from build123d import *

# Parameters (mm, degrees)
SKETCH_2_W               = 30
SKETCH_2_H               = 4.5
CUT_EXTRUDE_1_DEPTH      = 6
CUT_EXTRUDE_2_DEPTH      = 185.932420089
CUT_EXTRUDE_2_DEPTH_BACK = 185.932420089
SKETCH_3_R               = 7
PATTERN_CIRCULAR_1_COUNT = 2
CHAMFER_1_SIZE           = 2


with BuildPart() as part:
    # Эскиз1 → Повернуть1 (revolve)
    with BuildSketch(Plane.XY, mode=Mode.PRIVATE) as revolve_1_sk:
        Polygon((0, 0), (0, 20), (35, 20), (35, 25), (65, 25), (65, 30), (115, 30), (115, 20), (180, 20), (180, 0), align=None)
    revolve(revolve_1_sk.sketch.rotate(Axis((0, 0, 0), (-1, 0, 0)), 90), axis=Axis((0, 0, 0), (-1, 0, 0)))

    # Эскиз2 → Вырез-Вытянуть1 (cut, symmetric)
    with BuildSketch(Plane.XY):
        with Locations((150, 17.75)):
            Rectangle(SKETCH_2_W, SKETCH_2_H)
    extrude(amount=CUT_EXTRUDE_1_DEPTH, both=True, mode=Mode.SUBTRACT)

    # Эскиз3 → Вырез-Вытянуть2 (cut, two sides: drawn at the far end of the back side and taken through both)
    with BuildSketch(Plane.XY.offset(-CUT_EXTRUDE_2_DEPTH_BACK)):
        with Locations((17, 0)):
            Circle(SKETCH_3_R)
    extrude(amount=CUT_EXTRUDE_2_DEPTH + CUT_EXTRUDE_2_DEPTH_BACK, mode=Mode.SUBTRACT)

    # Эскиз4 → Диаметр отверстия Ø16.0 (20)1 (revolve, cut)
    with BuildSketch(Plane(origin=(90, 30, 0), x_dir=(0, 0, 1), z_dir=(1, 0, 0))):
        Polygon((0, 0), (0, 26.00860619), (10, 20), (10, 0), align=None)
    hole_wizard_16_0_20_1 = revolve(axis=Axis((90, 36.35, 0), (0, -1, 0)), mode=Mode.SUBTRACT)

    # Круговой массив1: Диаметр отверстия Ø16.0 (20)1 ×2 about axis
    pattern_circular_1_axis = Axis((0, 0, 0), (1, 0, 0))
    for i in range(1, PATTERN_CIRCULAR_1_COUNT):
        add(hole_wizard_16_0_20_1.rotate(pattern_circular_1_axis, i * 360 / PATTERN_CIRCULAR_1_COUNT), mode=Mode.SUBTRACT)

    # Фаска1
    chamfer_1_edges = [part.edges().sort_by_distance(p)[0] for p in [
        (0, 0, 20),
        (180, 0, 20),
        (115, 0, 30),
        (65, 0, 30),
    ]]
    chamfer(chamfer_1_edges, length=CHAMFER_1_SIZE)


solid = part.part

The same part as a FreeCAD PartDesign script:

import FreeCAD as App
import Part
import Sketcher
Q = App.Units.Quantity


def edges_at(feature, points):
    """Names of the edges that pass closest to the given points."""
    edges = feature.Shape.Edges
    near = lambda p: min(range(len(edges)), key=lambda i: edges[i].distToShape(Part.Vertex(*p))[0])
    return sorted({f"Edge{near(p) + 1}" for p in points})


def add_polygon(sketch, points):
    """Adds a closed chain of lines whose ends are joined by coincident constraints."""
    first, n = sketch.GeometryCount, len(points)
    for a, b in zip(points, points[1:] + points[:1]):
        sketch.addGeometry(Part.LineSegment(App.Vector(*a, 0), App.Vector(*b, 0)), False)
    for i in range(n):
        sketch.addConstraint(Sketcher.Constraint("Coincident", first + i, 2, first + (i + 1) % n, 1))

doc = App.newDocument("Part")
body = doc.addObject("PartDesign::Body", "Body")

# Sketch on XY plane
sketch1 = body.newObject("Sketcher::SketchObject", "Sketch")
sketch1.AttachmentSupport = (doc.getObject("XY_Plane"), [""])
sketch1.MapMode = "FlatFace"
add_polygon(sketch1, [(0, 20), (0, 0), (180, 0), (180, 20), (115, 20), (115, 30), (65, 30), (65, 25), (35, 25), (35, 20)])  # lines 0-9
sketch1.addConstraint([
    Sketcher.Constraint("Vertical", 0),
    Sketcher.Constraint("Horizontal", 1),
    Sketcher.Constraint("Vertical", 2),
    Sketcher.Constraint("Horizontal", 3),
    Sketcher.Constraint("Vertical", 4),
    Sketcher.Constraint("Horizontal", 5),
    Sketcher.Constraint("Vertical", 6),
    Sketcher.Constraint("Horizontal", 7),
    Sketcher.Constraint("Vertical", 8),
    Sketcher.Constraint("Horizontal", 9),
    Sketcher.Constraint("Coincident", 0, 2, -1, 1),
    Sketcher.Constraint("Horizontal", 3, 2, 8, 2),
    Sketcher.Constraint("Equal", 6, 8),
    Sketcher.Constraint("DistanceX", 1, 1, 1, 2, Q("180 mm")),
    Sketcher.Constraint("DistanceX", 3, 2, 3, 1, Q("65 mm")),
    Sketcher.Constraint("DistanceX", 5, 2, 5, 1, Q("50 mm")),
    Sketcher.Constraint("DistanceX", 7, 2, 7, 1, Q("30 mm")),
    Sketcher.Constraint("DistanceY", 0, 2, 0, 1, Q("20 mm")),
    Sketcher.Constraint("DistanceY", 4, 1, 4, 2, Q("10 mm")),
])
revolution = body.newObject("PartDesign::Revolution", "Revolution")
revolution.Profile = sketch1
revolution.ReferenceAxis = (sketch1, ["H_Axis"])
revolution.Angle = 360

# Sketch on XY plane
sketch2 = body.newObject("Sketcher::SketchObject", "Sketch001")
sketch2.AttachmentSupport = (doc.getObject("XY_Plane"), [""])
sketch2.MapMode = "FlatFace"
add_polygon(sketch2, [(135, 20), (135, 15.5), (165, 15.5), (165, 20)])  # lines 0-3
sketch2.addConstraint([
    Sketcher.Constraint("Vertical", 0),
    Sketcher.Constraint("Horizontal", 1),
    Sketcher.Constraint("Vertical", 2),
    Sketcher.Constraint("Horizontal", 3),
    Sketcher.Constraint("DistanceX", 1, 1, 1, 2, Q("30 mm")),
    Sketcher.Constraint("DistanceY", 0, 2, 0, 1, Q("4.5 mm")),
    Sketcher.Constraint("DistanceX", -1, 1, 0, 2, Q("135 mm")),
    Sketcher.Constraint("DistanceY", -1, 1, 2, 2, Q("20 mm")),
])
pocket1 = body.newObject("PartDesign::Pocket", "Pocket")
pocket1.Profile = sketch2
pocket1.Length = 12
pocket1.Midplane = True

# Sketch on XY plane
sketch3 = body.newObject("Sketcher::SketchObject", "Sketch002")
sketch3.AttachmentSupport = (doc.getObject("XY_Plane"), [""])
sketch3.MapMode = "FlatFace"
sketch3.addGeometry(Part.Circle(App.Vector(17, 0, 0), App.Vector(0, 0, 1), 7), False)
sketch3.addConstraint([
    Sketcher.Constraint("PointOnObject", 0, 3, -1),
    Sketcher.Constraint("Diameter", 0, Q("14 mm")),
    Sketcher.Constraint("DistanceX", -1, 1, 0, 3, Q("17 mm")),
])
pocket2 = body.newObject("PartDesign::Pocket", "Pocket001")
pocket2.Profile = sketch3
pocket2.Type = "ThroughAll"
pocket2.Midplane = True

# Sketch on YZ plane
sketch4 = body.newObject("Sketcher::SketchObject", "Sketch003")
sketch4.AttachmentSupport = (doc.getObject("YZ_Plane"), [""])
sketch4.MapMode = "FlatFace"
sketch4.AttachmentOffset = App.Placement(App.Vector(0, 0, 90), App.Rotation())
add_polygon(sketch4, [(3.991394, 0), (30, 0), (30, 10), (10, 10)])  # lines 0-3
sketch4.addConstraint([
    Sketcher.Constraint("Horizontal", 0),
    Sketcher.Constraint("Vertical", 1),
    Sketcher.Constraint("Horizontal", 2),
    Sketcher.Constraint("PointOnObject", 0, 2, -1),
    Sketcher.Constraint("DistanceX", 2, 2, 2, 1, Q("20 mm")),
    Sketcher.Constraint("DistanceY", 1, 1, 1, 2, Q("10 mm")),
    Sketcher.Constraint("Angle", 3, Q("-121 deg")),
    Sketcher.Constraint("DistanceX", -1, 1, 0, 2, Q("30 mm")),
])
groove = body.newObject("PartDesign::Groove", "Groove")
groove.Profile = sketch4
groove.ReferenceAxis = (sketch4, ["H_Axis"])
groove.Angle = 360
doc.recompute()

polarpattern = body.newObject("PartDesign::PolarPattern", "PolarPattern")
polarpattern.Originals = [groove]
polarpattern.Axis = (doc.getObject("X_Axis"), [""])
polarpattern.Angle = 360
polarpattern.Occurrences = 2
body.Tip = polarpattern
doc.recompute()

chamfer = body.newObject("PartDesign::Chamfer", "Chamfer")
chamfer.Base = (polarpattern, edges_at(polarpattern, [
    (0, 0, 20),
    (180, 0, 20),
    (115, 0, 30),
    (65, 0, 30),
]))
chamfer.Size = 2

doc.recompute()
